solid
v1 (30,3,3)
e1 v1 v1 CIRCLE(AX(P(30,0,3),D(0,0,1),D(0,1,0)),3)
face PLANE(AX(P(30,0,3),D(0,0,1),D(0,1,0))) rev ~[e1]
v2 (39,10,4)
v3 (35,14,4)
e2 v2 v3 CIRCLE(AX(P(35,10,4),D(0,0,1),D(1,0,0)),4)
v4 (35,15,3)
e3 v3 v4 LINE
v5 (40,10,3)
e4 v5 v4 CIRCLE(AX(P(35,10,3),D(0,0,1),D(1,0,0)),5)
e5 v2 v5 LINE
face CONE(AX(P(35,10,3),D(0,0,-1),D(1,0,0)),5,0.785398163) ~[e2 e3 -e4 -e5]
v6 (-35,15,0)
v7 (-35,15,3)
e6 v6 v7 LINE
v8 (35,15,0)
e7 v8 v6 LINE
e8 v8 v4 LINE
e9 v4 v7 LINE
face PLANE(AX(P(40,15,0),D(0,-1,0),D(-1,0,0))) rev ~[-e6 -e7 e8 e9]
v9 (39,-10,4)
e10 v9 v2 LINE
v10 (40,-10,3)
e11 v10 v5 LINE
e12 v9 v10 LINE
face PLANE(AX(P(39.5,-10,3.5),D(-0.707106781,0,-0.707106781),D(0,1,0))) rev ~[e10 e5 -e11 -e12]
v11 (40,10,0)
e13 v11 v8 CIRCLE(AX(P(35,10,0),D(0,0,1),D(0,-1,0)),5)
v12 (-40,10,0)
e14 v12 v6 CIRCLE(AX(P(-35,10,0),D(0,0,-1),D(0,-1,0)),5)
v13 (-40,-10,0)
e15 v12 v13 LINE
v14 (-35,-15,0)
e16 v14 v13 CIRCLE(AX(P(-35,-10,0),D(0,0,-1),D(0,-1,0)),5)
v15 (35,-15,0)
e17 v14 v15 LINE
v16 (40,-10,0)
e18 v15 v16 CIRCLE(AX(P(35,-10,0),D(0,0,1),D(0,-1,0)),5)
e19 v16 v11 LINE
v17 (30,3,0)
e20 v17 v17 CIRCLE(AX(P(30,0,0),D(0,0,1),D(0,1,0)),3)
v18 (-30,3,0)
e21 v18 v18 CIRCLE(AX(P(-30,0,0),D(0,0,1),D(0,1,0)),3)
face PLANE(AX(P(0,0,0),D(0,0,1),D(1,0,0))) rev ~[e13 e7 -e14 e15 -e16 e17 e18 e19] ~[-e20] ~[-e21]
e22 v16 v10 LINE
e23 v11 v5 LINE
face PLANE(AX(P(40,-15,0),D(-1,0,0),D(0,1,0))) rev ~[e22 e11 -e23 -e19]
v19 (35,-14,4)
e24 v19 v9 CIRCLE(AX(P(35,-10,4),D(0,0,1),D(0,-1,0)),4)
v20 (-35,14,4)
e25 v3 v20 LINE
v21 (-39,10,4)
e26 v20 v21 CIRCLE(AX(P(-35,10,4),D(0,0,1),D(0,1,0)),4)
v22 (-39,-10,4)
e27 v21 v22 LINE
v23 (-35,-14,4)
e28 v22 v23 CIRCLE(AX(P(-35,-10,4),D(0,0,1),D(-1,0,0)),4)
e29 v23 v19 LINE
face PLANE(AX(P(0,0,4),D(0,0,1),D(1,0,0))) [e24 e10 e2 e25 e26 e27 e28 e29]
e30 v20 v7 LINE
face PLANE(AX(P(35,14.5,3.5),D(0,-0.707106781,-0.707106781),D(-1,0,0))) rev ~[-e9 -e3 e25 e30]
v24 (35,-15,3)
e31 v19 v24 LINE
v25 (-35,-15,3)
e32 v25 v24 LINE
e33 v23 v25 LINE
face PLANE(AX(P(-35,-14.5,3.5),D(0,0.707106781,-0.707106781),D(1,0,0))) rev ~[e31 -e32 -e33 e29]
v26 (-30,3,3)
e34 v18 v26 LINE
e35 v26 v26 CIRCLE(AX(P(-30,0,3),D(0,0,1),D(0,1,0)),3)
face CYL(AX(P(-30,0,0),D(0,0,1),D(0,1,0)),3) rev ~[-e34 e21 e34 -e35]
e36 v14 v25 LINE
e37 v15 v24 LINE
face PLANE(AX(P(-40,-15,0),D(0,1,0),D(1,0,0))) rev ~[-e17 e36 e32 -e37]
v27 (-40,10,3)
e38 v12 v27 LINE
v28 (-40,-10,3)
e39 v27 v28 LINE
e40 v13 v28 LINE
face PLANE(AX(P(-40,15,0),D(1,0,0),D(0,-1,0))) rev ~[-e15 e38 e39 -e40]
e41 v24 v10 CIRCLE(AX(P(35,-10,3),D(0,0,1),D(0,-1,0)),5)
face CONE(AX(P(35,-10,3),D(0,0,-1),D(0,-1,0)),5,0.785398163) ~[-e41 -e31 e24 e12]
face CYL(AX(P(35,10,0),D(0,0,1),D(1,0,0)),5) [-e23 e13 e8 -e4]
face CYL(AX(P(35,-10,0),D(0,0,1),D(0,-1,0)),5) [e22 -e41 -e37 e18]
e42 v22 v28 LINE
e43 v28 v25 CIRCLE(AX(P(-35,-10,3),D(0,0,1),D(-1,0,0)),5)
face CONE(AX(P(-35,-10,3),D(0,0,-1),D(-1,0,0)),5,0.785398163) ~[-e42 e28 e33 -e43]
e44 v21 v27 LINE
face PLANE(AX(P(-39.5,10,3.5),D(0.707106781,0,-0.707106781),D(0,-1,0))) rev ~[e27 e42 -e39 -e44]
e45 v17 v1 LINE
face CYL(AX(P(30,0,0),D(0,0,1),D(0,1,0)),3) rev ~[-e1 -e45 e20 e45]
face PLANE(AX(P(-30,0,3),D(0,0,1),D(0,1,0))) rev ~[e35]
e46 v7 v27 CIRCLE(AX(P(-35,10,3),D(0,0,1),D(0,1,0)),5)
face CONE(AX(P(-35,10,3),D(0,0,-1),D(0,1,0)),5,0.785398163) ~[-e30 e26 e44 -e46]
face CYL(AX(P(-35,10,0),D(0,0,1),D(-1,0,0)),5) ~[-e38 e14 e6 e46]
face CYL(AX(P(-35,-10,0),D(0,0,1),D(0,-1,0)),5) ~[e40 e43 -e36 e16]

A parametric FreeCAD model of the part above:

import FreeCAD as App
import Part
import Sketcher

V = App.Vector
Q = App.Units.Quantity


def edges_at(feature, points):
    """Names of the edges that pass closest to the given points."""
    edges = feature.Shape.Edges
    near = lambda p: min(range(len(edges)), key=lambda i: edges[i].distToShape(Part.Vertex(*p))[0])
    return sorted({f"Edge{near(p) + 1}" for p in points})


def add_polygon(sketch, points):
    """Adds a closed chain of lines whose ends are joined by coincident constraints."""
    first, n = sketch.GeometryCount, len(points)
    for a, b in zip(points, points[1:] + points[:1]):
        sketch.addGeometry(Part.LineSegment(App.Vector(*a, 0), App.Vector(*b, 0)), False)
    for i in range(n):
        sketch.addConstraint(Sketcher.Constraint("Coincident", first + i, 2, first + (i + 1) % n, 1))

doc = App.newDocument("Part")
body = doc.addObject("PartDesign::Body", "Body")

# Sketch on XY plane
sketch1 = doc.addObject("Sketcher::SketchObject", "Sketch")
body.addObject(sketch1)
sketch1.AttachmentSupport = (doc.XY_Plane, [""])
sketch1.MapMode = "FlatFace"
add_polygon(sketch1, [(-40, 15), (-40, -15), (40, -15), (40, 15)])  # lines 0-3
sketch1.addConstraint([
    Sketcher.Constraint("Vertical", 0),
    Sketcher.Constraint("Horizontal", 1),
    Sketcher.Constraint("Vertical", 2),
    Sketcher.Constraint("Horizontal", 3),
    Sketcher.Constraint("Symmetric", 0, 2, 2, 2, -1, 1),
    Sketcher.Constraint("DistanceX", 1, 1, 1, 2, Q("80 mm")),
    Sketcher.Constraint("DistanceY", 0, 2, 0, 1, Q("30 mm")),
])
pad1 = doc.addObject("PartDesign::Pad", "Pad")
body.addObject(pad1)
pad1.Profile = sketch1
pad1.Length = 4

# Sketch on XY plane
sketch2 = doc.addObject("Sketcher::SketchObject", "Sketch001")
body.addObject(sketch2)
sketch2.AttachmentSupport = (doc.XY_Plane, [""])
sketch2.MapMode = "FlatFace"
sketch2.addGeometry(Part.Circle(V(30, 0, 0), V(0, 0, 1), 3), False)
sketch2.addConstraint([
    Sketcher.Constraint("PointOnObject", 0, 3, -1),
    Sketcher.Constraint("Diameter", 0, Q("6 mm")),
    Sketcher.Constraint("DistanceX", -1, 1, 0, 3, Q("30 mm")),
])
doc.recompute()
hole = doc.addObject("PartDesign::Hole", "Hole")
body.addObject(hole)
hole.Profile = sketch2
hole.ThreadType = "None"
hole.Diameter = 6
hole.DepthType = "Dimension"
hole.Depth = 3
hole.DrillPoint = "Flat"
hole.Reversed = True

# Sketch on XY plane
sketch3 = doc.addObject("Sketcher::SketchObject", "Sketch002")
body.addObject(sketch3)
sketch3.AttachmentSupport = (doc.XY_Plane, [""])
sketch3.MapMode = "FlatFace"
sketch3.addGeometry(Part.Circle(V(-30, 0, 0), V(0, 0, 1), 3), False)
sketch3.addConstraint([
    Sketcher.Constraint("PointOnObject", 0, 3, -1),
    Sketcher.Constraint("Diameter", 0, Q("6 mm")),
    Sketcher.Constraint("DistanceX", 0, 3, -1, 1, Q("30 mm")),
])
doc.recompute()
hole2 = doc.addObject("PartDesign::Hole", "Hole001")
body.addObject(hole2)
hole2.Profile = sketch3
hole2.ThreadType = "None"
hole2.Diameter = 6
hole2.DepthType = "Dimension"
hole2.Depth = 3
hole2.DrillPoint = "Flat"
hole2.Reversed = True
doc.recompute()

fillet = doc.addObject("PartDesign::Fillet", "Fillet")
body.addObject(fillet)
fillet.Base = (hole2, edges_at(hole2, [
    (-40, 15, 2),
    (-40, -15, 2),
    (40, -15, 2),
    (40, 15, 2),
]))
fillet.Radius = 5
doc.recompute()

chamfer = doc.addObject("PartDesign::Chamfer", "Chamfer")
body.addObject(chamfer)
chamfer.Base = (fillet, edges_at(fillet, [
    (-40, 0, 4),
    (-38.535, -13.536, 4),
    (0, -15, 4),
    (38.535, -13.536, 4),
    (40, 0, 4),
    (38.535, 13.536, 4),
    (0, 15, 4),
    (-38.535, 13.536, 4),
]))
chamfer.Size = 1

doc.recompute()
